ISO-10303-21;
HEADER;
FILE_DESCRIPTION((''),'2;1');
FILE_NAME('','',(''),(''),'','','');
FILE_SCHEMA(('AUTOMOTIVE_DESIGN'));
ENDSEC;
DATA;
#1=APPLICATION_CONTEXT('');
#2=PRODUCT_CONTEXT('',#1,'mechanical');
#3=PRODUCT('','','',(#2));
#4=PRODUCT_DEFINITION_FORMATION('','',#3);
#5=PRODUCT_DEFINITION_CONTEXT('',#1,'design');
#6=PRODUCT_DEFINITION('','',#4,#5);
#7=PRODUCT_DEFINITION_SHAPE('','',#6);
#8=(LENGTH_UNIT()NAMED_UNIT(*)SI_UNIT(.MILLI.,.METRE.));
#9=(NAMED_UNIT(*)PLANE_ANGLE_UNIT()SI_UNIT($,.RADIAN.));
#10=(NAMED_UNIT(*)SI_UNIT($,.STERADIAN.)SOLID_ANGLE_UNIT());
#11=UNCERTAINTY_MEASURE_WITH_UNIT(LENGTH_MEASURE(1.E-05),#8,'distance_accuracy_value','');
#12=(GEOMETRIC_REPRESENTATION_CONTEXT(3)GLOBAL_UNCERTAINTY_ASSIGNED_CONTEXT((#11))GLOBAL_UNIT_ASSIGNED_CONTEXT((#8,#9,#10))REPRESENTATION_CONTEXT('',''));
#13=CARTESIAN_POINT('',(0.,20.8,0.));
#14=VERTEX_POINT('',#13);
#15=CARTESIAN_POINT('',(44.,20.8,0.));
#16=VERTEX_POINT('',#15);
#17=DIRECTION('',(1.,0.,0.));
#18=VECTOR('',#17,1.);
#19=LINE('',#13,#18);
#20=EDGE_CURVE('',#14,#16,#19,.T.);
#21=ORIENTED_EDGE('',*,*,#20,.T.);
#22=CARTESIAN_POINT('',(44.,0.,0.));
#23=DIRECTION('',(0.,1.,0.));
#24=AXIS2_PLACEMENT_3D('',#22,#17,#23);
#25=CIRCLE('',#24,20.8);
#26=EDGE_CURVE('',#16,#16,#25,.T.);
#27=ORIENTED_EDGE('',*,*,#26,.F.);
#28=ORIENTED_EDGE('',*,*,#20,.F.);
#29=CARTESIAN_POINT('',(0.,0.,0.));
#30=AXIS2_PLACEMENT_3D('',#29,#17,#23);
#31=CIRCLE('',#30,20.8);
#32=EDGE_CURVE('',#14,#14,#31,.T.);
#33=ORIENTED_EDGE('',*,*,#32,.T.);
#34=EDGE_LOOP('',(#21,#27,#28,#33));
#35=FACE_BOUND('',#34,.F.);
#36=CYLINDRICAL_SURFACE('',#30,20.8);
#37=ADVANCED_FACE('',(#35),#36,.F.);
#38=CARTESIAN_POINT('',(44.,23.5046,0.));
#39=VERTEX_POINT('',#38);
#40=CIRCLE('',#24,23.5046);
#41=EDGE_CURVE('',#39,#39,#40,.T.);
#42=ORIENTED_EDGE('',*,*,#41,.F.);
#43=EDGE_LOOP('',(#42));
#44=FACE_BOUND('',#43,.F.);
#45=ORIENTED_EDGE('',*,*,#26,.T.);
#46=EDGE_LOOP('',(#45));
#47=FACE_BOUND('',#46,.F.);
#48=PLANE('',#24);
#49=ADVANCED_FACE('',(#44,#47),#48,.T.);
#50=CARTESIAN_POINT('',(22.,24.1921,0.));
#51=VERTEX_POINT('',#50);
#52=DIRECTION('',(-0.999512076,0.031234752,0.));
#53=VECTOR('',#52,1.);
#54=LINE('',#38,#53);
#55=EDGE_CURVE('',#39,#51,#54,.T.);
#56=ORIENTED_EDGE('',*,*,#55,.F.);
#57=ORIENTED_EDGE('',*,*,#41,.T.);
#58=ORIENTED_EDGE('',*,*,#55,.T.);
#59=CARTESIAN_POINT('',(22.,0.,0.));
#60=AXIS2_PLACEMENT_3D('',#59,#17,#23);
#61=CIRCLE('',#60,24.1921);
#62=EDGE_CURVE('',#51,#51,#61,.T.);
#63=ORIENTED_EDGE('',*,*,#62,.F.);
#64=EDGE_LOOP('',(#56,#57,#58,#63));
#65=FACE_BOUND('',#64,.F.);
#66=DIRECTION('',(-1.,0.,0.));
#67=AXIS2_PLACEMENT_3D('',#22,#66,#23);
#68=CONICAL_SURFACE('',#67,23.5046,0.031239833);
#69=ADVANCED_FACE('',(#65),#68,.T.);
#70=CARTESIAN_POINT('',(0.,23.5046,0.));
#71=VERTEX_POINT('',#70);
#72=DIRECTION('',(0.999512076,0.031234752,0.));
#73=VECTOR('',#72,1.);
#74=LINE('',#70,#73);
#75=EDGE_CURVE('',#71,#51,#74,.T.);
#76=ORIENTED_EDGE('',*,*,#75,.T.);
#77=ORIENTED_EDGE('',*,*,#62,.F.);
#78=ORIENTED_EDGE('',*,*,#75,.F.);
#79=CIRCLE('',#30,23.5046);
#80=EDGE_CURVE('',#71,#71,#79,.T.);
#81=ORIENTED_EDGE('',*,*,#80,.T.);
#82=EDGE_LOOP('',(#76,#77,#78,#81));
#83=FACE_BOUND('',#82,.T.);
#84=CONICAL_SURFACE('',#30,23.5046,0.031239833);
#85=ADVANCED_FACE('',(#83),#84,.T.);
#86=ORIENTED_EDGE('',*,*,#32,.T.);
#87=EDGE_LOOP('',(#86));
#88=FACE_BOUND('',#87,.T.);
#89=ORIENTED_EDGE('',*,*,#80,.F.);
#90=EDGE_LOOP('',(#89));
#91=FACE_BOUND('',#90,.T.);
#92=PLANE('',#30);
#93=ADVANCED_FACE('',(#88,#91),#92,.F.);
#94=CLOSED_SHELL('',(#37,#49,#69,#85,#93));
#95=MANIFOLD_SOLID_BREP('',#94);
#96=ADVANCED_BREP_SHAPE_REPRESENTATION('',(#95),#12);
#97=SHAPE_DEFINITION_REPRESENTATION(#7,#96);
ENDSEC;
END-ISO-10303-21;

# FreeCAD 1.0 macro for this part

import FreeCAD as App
import Part
import Sketcher
from FreeCAD import Vector
Q = App.Units.Quantity

doc = App.newDocument("Part")
params = doc.addObject("Spreadsheet::Sheet", "Params")
for row, (alias, value) in enumerate([
    ("sketch1_width", "44 mm"),
    ("revolution_angle", "360 deg"),
], start=1):
    params.set(f"A{row}", alias)
    params.set(f"B{row}", "=" + value)
    params.setAlias(f"B{row}", alias)

body = doc.addObject("PartDesign::Body", "Body")

# Sketch on XY plane
sketch1 = doc.addObject("Sketcher::SketchObject", "Sketch")
body.addObject(sketch1)
sketch1.AttachmentSupport = (doc.XY_Plane, [""])
sketch1.MapMode = "FlatFace"
sketch1.addGeometry(Part.LineSegment(Vector(0, 20.8, 0), Vector(44, 20.8, 0)), False)
sketch1.addGeometry(Part.LineSegment(Vector(44, 20.8, 0), Vector(44, 23.5, 0)), False)
sketch1.addGeometry(Part.LineSegment(Vector(44, 23.5, 0), Vector(22, 24.2, 0)), False)
sketch1.addGeometry(Part.LineSegment(Vector(22, 24.2, 0), Vector(0, 23.5, 0)), False)
sketch1.addGeometry(Part.LineSegment(Vector(0, 23.5, 0), Vector(0, 20.8, 0)), False)
sketch1.addConstraint(Sketcher.Constraint("Coincident", 0, 2, 1, 1))
sketch1.addConstraint(Sketcher.Constraint("Coincident", 1, 2, 2, 1))
sketch1.addConstraint(Sketcher.Constraint("Coincident", 2, 2, 3, 1))
sketch1.addConstraint(Sketcher.Constraint("Coincident", 3, 2, 4, 1))
sketch1.addConstraint(Sketcher.Constraint("Coincident", 4, 2, 0, 1))
sketch1.addConstraint(Sketcher.Constraint("Horizontal", 0))
sketch1.addConstraint(Sketcher.Constraint("Vertical", 1))
sketch1.addConstraint(Sketcher.Constraint("Vertical", 4))
sketch1.addConstraint(Sketcher.Constraint("PointOnObject", 3, 2, -2))
sketch1.addConstraint(Sketcher.Constraint("Horizontal", 1, 2, 3, 2))
sketch1.addConstraint(Sketcher.Constraint("Equal", 2, 3))
sketch1.addConstraint(Sketcher.Constraint("DistanceX", 0, 1, 0, 2, 44.0))
sketch1.addConstraint(Sketcher.Constraint("DistanceY", -1, 1, 0, 2, 20.8))
sketch1.addConstraint(Sketcher.Constraint("Angle", 2, Q("178.21 deg")))
sketch1.addConstraint(Sketcher.Constraint("DistanceY", 1, 1, 1, 2, 2.7046))
sketch1.setExpression("Constraints[11]", "Params.sketch1_width")
revolution = doc.addObject("PartDesign::Revolution", "Revolution")
body.addObject(revolution)
revolution.Profile = sketch1
revolution.ReferenceAxis = (sketch1, ["H_Axis"])
revolution.setExpression("Angle", "Params.revolution_angle")

doc.recompute()
